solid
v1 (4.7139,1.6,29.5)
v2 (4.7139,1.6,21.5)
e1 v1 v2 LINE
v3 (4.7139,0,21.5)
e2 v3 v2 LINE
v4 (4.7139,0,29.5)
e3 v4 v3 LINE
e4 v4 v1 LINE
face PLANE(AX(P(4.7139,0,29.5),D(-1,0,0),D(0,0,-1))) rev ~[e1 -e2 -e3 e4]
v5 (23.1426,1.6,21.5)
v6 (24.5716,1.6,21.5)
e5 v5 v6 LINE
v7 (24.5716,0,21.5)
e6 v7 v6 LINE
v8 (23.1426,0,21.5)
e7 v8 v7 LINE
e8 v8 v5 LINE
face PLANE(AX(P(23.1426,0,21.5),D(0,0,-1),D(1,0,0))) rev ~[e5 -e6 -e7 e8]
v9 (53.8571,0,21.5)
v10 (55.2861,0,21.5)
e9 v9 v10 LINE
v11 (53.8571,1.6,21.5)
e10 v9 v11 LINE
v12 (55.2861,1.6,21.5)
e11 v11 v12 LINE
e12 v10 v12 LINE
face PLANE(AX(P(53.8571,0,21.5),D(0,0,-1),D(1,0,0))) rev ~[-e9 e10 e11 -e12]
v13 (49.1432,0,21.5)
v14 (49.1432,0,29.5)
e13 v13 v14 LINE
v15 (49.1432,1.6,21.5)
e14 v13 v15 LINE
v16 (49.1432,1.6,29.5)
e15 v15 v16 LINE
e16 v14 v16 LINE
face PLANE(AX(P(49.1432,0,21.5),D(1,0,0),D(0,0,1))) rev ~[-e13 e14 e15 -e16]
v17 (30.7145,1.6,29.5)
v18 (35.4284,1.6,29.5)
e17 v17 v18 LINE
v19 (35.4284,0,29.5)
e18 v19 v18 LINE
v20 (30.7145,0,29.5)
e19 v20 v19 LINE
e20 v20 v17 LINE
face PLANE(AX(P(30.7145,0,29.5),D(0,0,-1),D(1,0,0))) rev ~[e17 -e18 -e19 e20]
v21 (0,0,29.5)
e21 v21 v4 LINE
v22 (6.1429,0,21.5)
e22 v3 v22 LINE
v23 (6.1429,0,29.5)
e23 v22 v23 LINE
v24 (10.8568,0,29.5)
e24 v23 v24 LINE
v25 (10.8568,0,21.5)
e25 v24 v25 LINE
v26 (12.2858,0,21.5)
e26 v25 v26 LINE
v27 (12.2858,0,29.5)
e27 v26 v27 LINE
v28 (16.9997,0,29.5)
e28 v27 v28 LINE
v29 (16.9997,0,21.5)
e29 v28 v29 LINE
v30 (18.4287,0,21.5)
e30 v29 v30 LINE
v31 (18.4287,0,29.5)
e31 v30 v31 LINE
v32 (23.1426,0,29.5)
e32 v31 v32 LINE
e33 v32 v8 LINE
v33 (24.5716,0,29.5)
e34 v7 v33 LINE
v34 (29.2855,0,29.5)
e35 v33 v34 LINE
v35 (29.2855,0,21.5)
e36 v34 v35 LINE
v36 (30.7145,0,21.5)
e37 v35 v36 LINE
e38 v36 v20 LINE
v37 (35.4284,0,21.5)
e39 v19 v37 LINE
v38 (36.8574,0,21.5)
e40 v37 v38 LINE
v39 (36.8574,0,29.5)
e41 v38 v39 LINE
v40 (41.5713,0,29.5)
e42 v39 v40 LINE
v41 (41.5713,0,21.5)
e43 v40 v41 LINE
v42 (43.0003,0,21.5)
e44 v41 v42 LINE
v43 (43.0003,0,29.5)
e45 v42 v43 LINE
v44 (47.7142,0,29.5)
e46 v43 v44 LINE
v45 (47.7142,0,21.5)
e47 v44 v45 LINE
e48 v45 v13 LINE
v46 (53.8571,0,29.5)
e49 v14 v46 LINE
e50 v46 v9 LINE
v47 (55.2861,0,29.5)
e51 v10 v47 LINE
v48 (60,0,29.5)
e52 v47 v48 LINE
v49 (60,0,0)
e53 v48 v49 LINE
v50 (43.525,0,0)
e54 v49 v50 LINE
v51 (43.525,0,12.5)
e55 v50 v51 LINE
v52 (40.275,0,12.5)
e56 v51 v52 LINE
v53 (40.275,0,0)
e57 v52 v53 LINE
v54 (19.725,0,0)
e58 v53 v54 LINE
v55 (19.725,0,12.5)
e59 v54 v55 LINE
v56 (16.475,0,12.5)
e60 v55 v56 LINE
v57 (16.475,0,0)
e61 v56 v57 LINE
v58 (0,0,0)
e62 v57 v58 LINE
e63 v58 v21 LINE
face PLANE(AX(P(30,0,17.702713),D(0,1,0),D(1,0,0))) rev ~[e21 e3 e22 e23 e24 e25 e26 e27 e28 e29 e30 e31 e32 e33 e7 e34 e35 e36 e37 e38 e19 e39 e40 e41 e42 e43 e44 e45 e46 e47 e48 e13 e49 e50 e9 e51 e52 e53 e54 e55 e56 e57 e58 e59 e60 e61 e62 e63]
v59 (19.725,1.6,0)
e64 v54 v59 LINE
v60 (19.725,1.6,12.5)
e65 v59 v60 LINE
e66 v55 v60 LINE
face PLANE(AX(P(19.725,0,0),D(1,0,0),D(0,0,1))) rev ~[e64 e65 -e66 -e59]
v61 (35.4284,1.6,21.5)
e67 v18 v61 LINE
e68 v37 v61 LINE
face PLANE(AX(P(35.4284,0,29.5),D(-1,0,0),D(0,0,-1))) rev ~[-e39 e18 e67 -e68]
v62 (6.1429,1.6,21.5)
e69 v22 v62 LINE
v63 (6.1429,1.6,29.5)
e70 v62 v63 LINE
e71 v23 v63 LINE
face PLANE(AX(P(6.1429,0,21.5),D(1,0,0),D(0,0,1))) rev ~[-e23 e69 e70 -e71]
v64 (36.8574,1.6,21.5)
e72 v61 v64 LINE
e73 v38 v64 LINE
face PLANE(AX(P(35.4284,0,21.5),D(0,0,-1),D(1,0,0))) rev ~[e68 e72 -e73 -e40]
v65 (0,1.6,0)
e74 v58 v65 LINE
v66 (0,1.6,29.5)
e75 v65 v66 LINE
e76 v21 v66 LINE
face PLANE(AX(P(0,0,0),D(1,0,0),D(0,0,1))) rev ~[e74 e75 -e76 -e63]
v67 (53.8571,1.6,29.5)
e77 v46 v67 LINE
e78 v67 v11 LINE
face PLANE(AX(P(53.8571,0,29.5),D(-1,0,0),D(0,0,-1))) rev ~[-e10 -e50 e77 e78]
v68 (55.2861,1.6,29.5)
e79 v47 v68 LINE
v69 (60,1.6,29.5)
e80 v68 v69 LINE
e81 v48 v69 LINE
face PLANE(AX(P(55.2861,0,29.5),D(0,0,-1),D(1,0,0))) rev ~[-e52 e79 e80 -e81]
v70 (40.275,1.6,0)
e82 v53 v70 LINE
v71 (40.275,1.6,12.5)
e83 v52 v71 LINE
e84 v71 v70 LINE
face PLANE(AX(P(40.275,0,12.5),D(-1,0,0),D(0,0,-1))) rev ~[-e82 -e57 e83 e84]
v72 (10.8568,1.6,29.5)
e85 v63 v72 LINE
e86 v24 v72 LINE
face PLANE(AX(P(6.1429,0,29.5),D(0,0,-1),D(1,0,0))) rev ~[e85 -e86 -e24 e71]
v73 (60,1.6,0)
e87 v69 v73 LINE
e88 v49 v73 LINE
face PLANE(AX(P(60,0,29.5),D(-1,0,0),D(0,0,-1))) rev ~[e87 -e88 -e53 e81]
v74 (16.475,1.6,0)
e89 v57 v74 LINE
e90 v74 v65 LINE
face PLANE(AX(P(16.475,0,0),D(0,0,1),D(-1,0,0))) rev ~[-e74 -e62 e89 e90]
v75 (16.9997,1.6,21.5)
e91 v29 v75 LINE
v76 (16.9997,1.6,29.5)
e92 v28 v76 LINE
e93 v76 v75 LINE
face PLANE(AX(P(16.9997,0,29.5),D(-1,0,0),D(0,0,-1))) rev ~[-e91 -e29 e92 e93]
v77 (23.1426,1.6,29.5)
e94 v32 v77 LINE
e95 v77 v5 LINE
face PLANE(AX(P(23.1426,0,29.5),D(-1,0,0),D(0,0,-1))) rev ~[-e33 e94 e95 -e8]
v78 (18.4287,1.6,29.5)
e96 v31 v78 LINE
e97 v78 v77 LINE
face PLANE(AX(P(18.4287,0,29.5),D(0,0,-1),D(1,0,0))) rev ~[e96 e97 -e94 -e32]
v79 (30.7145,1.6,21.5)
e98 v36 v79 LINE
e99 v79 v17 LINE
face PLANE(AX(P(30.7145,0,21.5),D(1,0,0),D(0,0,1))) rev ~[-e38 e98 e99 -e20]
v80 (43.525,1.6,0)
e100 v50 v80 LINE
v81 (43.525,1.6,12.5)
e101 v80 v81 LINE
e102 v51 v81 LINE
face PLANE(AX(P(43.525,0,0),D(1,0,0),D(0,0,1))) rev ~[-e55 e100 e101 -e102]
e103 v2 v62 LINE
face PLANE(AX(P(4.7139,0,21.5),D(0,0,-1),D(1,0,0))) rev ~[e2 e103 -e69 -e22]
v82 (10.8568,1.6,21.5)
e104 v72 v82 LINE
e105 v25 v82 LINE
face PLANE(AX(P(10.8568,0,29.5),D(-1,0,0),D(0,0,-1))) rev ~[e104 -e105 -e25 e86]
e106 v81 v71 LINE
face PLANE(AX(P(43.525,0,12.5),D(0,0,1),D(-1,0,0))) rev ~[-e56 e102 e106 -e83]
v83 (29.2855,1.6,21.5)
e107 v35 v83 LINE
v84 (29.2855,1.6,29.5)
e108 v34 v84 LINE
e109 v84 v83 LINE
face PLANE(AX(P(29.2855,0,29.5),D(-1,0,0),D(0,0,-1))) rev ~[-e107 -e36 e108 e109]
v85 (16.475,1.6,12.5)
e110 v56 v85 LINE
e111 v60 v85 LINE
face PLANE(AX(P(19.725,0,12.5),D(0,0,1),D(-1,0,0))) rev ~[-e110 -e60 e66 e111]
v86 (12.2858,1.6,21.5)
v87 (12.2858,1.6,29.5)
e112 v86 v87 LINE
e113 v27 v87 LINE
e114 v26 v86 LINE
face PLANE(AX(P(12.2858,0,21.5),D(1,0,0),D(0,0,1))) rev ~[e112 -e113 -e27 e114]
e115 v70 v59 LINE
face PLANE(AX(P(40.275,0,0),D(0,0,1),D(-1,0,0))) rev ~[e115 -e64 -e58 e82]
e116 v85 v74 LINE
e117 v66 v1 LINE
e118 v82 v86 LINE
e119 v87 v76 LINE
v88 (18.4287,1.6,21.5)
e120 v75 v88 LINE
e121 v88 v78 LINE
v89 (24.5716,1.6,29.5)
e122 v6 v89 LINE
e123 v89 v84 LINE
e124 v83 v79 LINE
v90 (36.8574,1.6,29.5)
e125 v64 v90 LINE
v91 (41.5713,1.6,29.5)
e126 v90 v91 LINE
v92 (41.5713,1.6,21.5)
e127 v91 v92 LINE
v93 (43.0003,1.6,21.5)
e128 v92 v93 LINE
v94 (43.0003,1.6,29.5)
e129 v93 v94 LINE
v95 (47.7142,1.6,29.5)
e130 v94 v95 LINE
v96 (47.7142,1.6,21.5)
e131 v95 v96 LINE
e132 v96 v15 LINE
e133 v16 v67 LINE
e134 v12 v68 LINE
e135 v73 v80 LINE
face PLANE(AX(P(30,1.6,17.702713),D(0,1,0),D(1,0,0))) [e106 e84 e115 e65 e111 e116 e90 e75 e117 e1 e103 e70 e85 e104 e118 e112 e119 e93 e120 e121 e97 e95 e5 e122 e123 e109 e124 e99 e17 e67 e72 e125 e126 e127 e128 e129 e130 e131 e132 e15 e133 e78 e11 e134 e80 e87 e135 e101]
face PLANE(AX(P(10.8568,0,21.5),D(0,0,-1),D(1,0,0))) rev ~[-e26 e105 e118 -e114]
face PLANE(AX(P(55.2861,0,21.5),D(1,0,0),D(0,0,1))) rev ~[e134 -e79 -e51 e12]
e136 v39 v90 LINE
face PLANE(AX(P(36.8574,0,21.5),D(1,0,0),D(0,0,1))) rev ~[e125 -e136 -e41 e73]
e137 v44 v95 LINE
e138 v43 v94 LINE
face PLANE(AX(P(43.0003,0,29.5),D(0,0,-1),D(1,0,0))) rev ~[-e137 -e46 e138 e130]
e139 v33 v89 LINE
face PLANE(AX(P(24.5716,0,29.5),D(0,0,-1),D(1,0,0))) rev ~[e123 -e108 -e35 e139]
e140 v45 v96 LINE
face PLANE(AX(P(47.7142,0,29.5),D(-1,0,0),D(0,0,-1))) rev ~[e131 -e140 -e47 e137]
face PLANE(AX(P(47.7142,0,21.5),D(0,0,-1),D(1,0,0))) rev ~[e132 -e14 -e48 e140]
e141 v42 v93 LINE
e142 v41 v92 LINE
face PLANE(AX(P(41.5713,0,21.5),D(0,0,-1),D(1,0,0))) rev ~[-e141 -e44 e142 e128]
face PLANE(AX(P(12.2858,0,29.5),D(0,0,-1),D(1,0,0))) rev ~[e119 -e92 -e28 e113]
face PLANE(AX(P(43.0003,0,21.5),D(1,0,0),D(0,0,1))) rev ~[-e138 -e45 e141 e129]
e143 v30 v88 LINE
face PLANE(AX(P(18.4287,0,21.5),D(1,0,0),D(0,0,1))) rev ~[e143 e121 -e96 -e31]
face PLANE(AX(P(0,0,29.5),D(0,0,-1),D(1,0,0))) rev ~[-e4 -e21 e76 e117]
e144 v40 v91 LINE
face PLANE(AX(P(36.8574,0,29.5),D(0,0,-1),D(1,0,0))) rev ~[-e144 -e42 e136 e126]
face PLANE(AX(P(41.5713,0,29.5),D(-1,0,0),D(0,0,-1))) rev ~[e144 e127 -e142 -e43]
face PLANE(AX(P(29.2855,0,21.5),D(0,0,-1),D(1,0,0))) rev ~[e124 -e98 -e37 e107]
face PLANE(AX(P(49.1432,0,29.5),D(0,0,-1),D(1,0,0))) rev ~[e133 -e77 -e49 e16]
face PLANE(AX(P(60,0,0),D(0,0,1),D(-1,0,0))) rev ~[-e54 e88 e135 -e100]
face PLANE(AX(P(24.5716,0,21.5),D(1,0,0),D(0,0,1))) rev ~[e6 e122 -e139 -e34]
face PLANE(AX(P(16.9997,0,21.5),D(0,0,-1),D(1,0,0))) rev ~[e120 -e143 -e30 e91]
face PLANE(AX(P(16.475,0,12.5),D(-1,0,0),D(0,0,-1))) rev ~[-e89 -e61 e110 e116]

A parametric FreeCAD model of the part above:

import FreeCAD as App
import Part
import Sketcher

V = App.Vector


def add_polygon(sketch, points):
    """Adds a closed chain of lines whose ends are joined by coincident constraints."""
    first, n = sketch.GeometryCount, len(points)
    for a, b in zip(points, points[1:] + points[:1]):
        sketch.addGeometry(Part.LineSegment(App.Vector(*a, 0), App.Vector(*b, 0)), False)
    for i in range(n):
        sketch.addConstraint(Sketcher.Constraint("Coincident", first + i, 2, first + (i + 1) % n, 1))

doc = App.newDocument("Part")
params = doc.addObject("Spreadsheet::Sheet", "Params")
for row, (alias, value) in enumerate([
    ("sketch1_height", "8 mm"),
    ("sketch1_height2", "29.5 mm"),
    ("sketch1_height3", "12.5 mm"),
    ("sketch1_width", "3.25 mm"),
    ("sketch1_width2", "20.55 mm"),
    ("pad1_length", "1.6 mm"),
], start=1):
    params.set(f"A{row}", alias)
    params.set(f"B{row}", "=" + value)
    params.setAlias(f"B{row}", alias)

body = doc.addObject("PartDesign::Body", "Body")

# Sketch on XZ plane
sketch1 = body.newObject("Sketcher::SketchObject", "Sketch")
sketch1.AttachmentSupport = (doc.getObject("XZ_Plane"), [""])
sketch1.MapMode = "FlatFace"
add_polygon(sketch1, [(0, 0), (0, 29.5), (4.7139, 29.5), (4.7139, 21.5), (6.1429, 21.5), (6.1429, 29.5), (10.8568, 29.5), (10.8568, 21.5), (12.2858, 21.5), (12.2858, 29.5), (16.9997, 29.5), (16.9997, 21.5), (18.4287, 21.5), (18.4287, 29.5), (23.1426, 29.5), (23.1426, 21.5), (24.5716, 21.5), (24.5716, 29.5), (29.2855, 29.5), (29.2855, 21.5), (30.7145, 21.5), (30.7145, 29.5), (35.4284, 29.5), (35.4284, 21.5), (36.8574, 21.5), (36.8574, 29.5), (41.5713, 29.5), (41.5713, 21.5), (43.0003, 21.5), (43.0003, 29.5), (47.7142, 29.5), (47.7142, 21.5), (49.1432, 21.5), (49.1432, 29.5), (53.8571, 29.5), (53.8571, 21.5), (55.2861, 21.5), (55.2861, 29.5), (60, 29.5), (60, 0), (43.525, 0), (43.525, 12.5), (40.275, 12.5), (40.275, 0), (19.725, 0), (19.725, 12.5), (16.475, 12.5), (16.475, 0)])  # lines 0-47
sketch1.addConstraint(Sketcher.Constraint("Vertical", 0))
sketch1.addConstraint(Sketcher.Constraint("Horizontal", 1))
sketch1.addConstraint(Sketcher.Constraint("Vertical", 2))
sketch1.addConstraint(Sketcher.Constraint("Horizontal", 3))
sketch1.addConstraint(Sketcher.Constraint("Vertical", 4))
sketch1.addConstraint(Sketcher.Constraint("Horizontal", 5))
sketch1.addConstraint(Sketcher.Constraint("Vertical", 6))
sketch1.addConstraint(Sketcher.Constraint("Horizontal", 7))
sketch1.addConstraint(Sketcher.Constraint("Vertical", 8))
sketch1.addConstraint(Sketcher.Constraint("Horizontal", 9))
sketch1.addConstraint(Sketcher.Constraint("Vertical", 10))
sketch1.addConstraint(Sketcher.Constraint("Horizontal", 11))
sketch1.addConstraint(Sketcher.Constraint("Vertical", 12))
sketch1.addConstraint(Sketcher.Constraint("Horizontal", 13))
sketch1.addConstraint(Sketcher.Constraint("Vertical", 14))
sketch1.addConstraint(Sketcher.Constraint("Horizontal", 15))
sketch1.addConstraint(Sketcher.Constraint("Vertical", 16))
sketch1.addConstraint(Sketcher.Constraint("Horizontal", 17))
sketch1.addConstraint(Sketcher.Constraint("Vertical", 18))
sketch1.addConstraint(Sketcher.Constraint("Horizontal", 19))
sketch1.addConstraint(Sketcher.Constraint("Vertical", 20))
sketch1.addConstraint(Sketcher.Constraint("Horizontal", 21))
sketch1.addConstraint(Sketcher.Constraint("Vertical", 22))
sketch1.addConstraint(Sketcher.Constraint("Horizontal", 23))
sketch1.addConstraint(Sketcher.Constraint("Vertical", 24))
sketch1.addConstraint(Sketcher.Constraint("Horizontal", 25))
sketch1.addConstraint(Sketcher.Constraint("Vertical", 26))
sketch1.addConstraint(Sketcher.Constraint("Horizontal", 27))
sketch1.addConstraint(Sketcher.Constraint("Vertical", 28))
sketch1.addConstraint(Sketcher.Constraint("Horizontal", 29))
sketch1.addConstraint(Sketcher.Constraint("Vertical", 30))
sketch1.addConstraint(Sketcher.Constraint("Horizontal", 31))
sketch1.addConstraint(Sketcher.Constraint("Vertical", 32))
sketch1.addConstraint(Sketcher.Constraint("Horizontal", 33))
sketch1.addConstraint(Sketcher.Constraint("Vertical", 34))
sketch1.addConstraint(Sketcher.Constraint("Horizontal", 35))
sketch1.addConstraint(Sketcher.Constraint("Vertical", 36))
sketch1.addConstraint(Sketcher.Constraint("Horizontal", 37))
sketch1.addConstraint(Sketcher.Constraint("Vertical", 38))
sketch1.addConstraint(Sketcher.Constraint("Horizontal", 39))
sketch1.addConstraint(Sketcher.Constraint("Vertical", 40))
sketch1.addConstraint(Sketcher.Constraint("Horizontal", 41))
sketch1.addConstraint(Sketcher.Constraint("Vertical", 42))
sketch1.addConstraint(Sketcher.Constraint("Horizontal", 43))
sketch1.addConstraint(Sketcher.Constraint("Vertical", 44))
sketch1.addConstraint(Sketcher.Constraint("Horizontal", 45))
sketch1.addConstraint(Sketcher.Constraint("Vertical", 46))
sketch1.addConstraint(Sketcher.Constraint("Horizontal", 47))
sketch1.addConstraint(Sketcher.Constraint("Coincident", 47, 2, -1, 1))
sketch1.addConstraint(Sketcher.Constraint("PointOnObject", 38, 2, -1))
sketch1.addConstraint(Sketcher.Constraint("PointOnObject", 42, 2, -1))
sketch1.addConstraint(Sketcher.Constraint("Horizontal", 1, 2, 4, 2))
sketch1.addConstraint(Sketcher.Constraint("Horizontal", 3, 2, 6, 2))
sketch1.addConstraint(Sketcher.Constraint("Horizontal", 5, 2, 8, 2))
sketch1.addConstraint(Sketcher.Constraint("Horizontal", 7, 2, 10, 2))
sketch1.addConstraint(Sketcher.Constraint("Horizontal", 9, 2, 12, 2))
sketch1.addConstraint(Sketcher.Constraint("Horizontal", 11, 2, 14, 2))
sketch1.addConstraint(Sketcher.Constraint("Horizontal", 13, 2, 16, 2))
sketch1.addConstraint(Sketcher.Constraint("Horizontal", 15, 2, 18, 2))
sketch1.addConstraint(Sketcher.Constraint("Horizontal", 17, 2, 20, 2))
sketch1.addConstraint(Sketcher.Constraint("Horizontal", 19, 2, 22, 2))
sketch1.addConstraint(Sketcher.Constraint("Horizontal", 21, 2, 24, 2))
sketch1.addConstraint(Sketcher.Constraint("Horizontal", 23, 2, 26, 2))
sketch1.addConstraint(Sketcher.Constraint("Horizontal", 25, 2, 28, 2))
sketch1.addConstraint(Sketcher.Constraint("Horizontal", 27, 2, 30, 2))
sketch1.addConstraint(Sketcher.Constraint("Horizontal", 29, 2, 32, 2))
sketch1.addConstraint(Sketcher.Constraint("Horizontal", 31, 2, 34, 2))
sketch1.addConstraint(Sketcher.Constraint("Horizontal", 33, 2, 36, 2))
sketch1.addConstraint(Sketcher.Constraint("Horizontal", 41, 2, 44, 2))
sketch1.addConstraint(Sketcher.Constraint("Equal", 1, 5))
sketch1.addConstraint(Sketcher.Constraint("Equal", 3, 7))
sketch1.addConstraint(Sketcher.Constraint("Equal", 5, 9))
sketch1.addConstraint(Sketcher.Constraint("Equal", 7, 11))
sketch1.addConstraint(Sketcher.Constraint("Equal", 9, 13))
sketch1.addConstraint(Sketcher.Constraint("Equal", 11, 15))
sketch1.addConstraint(Sketcher.Constraint("Equal", 13, 17))
sketch1.addConstraint(Sketcher.Constraint("Equal", 15, 19))
sketch1.addConstraint(Sketcher.Constraint("Equal", 17, 21))
sketch1.addConstraint(Sketcher.Constraint("Equal", 19, 23))
sketch1.addConstraint(Sketcher.Constraint("Equal", 21, 25))
sketch1.addConstraint(Sketcher.Constraint("Equal", 23, 27))
sketch1.addConstraint(Sketcher.Constraint("Equal", 25, 29))
sketch1.addConstraint(Sketcher.Constraint("Equal", 27, 31))
sketch1.addConstraint(Sketcher.Constraint("Equal", 29, 33))
sketch1.addConstraint(Sketcher.Constraint("Equal", 31, 35))
sketch1.addConstraint(Sketcher.Constraint("Equal", 33, 37))
sketch1.addConstraint(Sketcher.Constraint("Equal", 41, 45))
sketch1.addConstraint(Sketcher.Constraint("Equal", 39, 47))
sketch1.addConstraint(Sketcher.Constraint("DistanceY", 2, 2, 2, 1, 8.0))
sketch1.addConstraint(Sketcher.Constraint("DistanceY", 0, 1, 0, 2, 29.5))
sketch1.addConstraint(Sketcher.Constraint("DistanceY", 40, 1, 40, 2, 12.5))
sketch1.addConstraint(Sketcher.Constraint("DistanceX", -1, 1, 37, 2, 60.0))
sketch1.addConstraint(Sketcher.Constraint("DistanceX", 41, 2, 41, 1, 3.25))
sketch1.addConstraint(Sketcher.Constraint("DistanceX", 43, 2, 43, 1, 20.55))
sketch1.addConstraint(Sketcher.Constraint("DistanceX", 3, 1, 3, 2, 1.429))
sketch1.setExpression("Constraints[136]", "Params.sketch1_height")
sketch1.setExpression("Constraints[137]", "Params.sketch1_height2")
sketch1.setExpression("Constraints[138]", "Params.sketch1_height3")
sketch1.setExpression("Constraints[140]", "Params.sketch1_width")
sketch1.setExpression("Constraints[141]", "Params.sketch1_width2")
pad1 = body.newObject("PartDesign::Pad", "Pad")
pad1.Profile = sketch1
pad1.setExpression("Length", "Params.pad1_length")
pad1.Reversed = True

doc.recompute()
